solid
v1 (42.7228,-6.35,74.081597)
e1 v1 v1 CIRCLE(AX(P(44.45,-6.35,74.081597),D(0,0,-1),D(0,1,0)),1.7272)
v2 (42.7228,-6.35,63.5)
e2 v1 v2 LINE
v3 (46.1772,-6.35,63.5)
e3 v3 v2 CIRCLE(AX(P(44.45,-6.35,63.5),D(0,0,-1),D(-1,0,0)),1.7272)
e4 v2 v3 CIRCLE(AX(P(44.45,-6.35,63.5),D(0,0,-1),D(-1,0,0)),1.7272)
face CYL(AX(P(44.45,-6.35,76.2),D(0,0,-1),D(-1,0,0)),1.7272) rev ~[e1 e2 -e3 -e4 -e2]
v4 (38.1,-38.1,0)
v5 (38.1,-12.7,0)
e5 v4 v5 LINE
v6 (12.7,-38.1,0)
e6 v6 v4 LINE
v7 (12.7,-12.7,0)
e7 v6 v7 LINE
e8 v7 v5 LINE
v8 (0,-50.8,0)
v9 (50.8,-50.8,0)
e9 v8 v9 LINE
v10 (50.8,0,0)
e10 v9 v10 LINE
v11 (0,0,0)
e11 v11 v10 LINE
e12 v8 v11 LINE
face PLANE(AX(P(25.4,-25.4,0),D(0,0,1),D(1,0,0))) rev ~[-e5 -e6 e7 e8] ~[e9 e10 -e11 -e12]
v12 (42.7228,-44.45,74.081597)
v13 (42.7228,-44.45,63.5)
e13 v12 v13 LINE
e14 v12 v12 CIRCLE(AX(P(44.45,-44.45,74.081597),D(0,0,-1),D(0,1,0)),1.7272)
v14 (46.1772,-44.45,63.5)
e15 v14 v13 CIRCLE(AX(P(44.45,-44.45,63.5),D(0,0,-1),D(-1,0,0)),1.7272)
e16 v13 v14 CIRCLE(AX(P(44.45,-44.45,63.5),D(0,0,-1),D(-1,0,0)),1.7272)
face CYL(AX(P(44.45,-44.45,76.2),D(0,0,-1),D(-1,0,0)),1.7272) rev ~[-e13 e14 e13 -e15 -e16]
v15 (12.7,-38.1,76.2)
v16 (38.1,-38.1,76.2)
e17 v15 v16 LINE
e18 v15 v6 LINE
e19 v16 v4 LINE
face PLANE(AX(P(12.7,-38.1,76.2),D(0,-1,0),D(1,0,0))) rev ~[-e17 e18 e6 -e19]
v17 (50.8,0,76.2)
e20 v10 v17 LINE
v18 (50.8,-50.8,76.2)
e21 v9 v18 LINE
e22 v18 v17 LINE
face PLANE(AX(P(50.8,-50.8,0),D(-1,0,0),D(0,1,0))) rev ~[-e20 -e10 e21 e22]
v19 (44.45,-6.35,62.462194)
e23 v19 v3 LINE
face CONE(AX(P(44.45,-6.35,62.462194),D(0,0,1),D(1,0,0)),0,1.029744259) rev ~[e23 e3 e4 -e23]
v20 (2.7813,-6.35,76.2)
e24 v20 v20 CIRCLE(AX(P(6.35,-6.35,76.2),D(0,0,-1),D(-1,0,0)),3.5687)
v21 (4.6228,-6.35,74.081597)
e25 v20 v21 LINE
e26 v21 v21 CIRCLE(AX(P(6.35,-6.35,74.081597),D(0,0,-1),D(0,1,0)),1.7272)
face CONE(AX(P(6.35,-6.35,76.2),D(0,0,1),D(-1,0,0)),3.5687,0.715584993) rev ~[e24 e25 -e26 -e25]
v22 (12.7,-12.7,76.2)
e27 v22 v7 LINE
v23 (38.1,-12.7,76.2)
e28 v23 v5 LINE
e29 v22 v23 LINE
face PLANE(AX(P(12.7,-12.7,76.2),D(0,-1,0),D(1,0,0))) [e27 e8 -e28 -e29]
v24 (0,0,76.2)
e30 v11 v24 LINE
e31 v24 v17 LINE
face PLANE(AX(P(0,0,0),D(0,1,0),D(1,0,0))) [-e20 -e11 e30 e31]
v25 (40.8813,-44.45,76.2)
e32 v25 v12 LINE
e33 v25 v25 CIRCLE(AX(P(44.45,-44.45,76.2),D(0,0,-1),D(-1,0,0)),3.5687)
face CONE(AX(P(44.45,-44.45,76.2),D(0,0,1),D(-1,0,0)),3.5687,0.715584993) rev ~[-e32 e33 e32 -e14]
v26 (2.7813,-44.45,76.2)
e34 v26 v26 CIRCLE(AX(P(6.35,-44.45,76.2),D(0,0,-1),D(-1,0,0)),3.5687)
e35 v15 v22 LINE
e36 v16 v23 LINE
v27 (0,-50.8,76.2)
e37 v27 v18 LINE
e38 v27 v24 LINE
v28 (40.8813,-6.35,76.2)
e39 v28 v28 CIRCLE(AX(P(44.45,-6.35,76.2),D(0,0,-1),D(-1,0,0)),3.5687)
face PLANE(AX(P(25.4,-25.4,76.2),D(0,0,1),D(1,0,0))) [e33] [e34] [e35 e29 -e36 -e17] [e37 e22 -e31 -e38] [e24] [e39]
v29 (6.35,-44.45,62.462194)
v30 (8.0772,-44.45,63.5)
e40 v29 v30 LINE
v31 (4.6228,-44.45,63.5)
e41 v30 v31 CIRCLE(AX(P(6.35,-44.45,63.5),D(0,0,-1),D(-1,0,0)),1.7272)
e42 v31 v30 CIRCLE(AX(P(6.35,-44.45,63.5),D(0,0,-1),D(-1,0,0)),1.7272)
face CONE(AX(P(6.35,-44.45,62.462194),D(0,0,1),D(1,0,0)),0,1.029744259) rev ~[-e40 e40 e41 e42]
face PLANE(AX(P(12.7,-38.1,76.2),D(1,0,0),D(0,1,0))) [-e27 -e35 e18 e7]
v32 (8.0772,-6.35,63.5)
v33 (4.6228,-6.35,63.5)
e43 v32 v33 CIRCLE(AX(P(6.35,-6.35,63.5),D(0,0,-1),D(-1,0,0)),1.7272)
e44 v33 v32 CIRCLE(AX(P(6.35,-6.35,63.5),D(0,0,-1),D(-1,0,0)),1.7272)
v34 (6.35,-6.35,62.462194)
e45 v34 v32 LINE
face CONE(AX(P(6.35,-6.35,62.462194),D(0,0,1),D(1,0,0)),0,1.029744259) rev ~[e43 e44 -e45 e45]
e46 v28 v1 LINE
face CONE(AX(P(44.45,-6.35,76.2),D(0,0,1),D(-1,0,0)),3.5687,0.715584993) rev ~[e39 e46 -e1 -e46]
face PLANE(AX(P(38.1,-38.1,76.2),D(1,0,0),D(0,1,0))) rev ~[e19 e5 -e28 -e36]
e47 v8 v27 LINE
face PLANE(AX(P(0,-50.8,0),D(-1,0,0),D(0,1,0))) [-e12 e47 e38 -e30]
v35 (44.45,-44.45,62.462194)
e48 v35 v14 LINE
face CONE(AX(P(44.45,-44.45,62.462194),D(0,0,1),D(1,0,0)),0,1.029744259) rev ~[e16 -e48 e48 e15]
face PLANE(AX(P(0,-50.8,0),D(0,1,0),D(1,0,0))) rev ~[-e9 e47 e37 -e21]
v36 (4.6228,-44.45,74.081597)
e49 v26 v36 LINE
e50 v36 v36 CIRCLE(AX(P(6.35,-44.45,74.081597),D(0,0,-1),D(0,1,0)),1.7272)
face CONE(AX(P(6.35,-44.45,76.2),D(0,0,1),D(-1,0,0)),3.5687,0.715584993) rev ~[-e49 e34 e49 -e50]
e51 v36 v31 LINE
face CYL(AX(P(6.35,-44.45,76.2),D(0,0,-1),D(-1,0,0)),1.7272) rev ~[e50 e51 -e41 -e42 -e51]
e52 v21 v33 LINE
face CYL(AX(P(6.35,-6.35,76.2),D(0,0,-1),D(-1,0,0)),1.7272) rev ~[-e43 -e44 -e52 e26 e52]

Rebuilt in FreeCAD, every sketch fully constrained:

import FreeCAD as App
import Part
import Sketcher
from FreeCAD import Vector
Q = App.Units.Quantity

doc = App.newDocument("Part")
body = doc.addObject("PartDesign::Body", "Body")

# Sketch on XY plane
sketch1 = body.newObject("Sketcher::SketchObject", "Sketch")
sketch1.AttachmentSupport = (doc.getObject("XY_Plane"), [""])
sketch1.MapMode = "FlatFace"
sketch1.addGeometry([
    Part.LineSegment(Vector(0, 0, 0), Vector(0, -51, 0)),
    Part.LineSegment(Vector(0, -51, 0), Vector(51, -51, 0)),
    Part.LineSegment(Vector(51, -51, 0), Vector(51, 0, 0)),
    Part.LineSegment(Vector(51, 0, 0), Vector(0, 0, 0)),
], False)
sketch1.addConstraint([
    Sketcher.Constraint("Coincident", 0, 2, 1, 1),
    Sketcher.Constraint("Coincident", 1, 2, 2, 1),
    Sketcher.Constraint("Coincident", 2, 2, 3, 1),
    Sketcher.Constraint("Coincident", 3, 2, 0, 1),
    Sketcher.Constraint("Vertical", 0),
    Sketcher.Constraint("Horizontal", 1),
    Sketcher.Constraint("Vertical", 2),
    Sketcher.Constraint("Horizontal", 3),
    Sketcher.Constraint("Coincident", 3, 2, -1, 1),
    Sketcher.Constraint("Equal", 3, 0),
    Sketcher.Constraint("DistanceX", 1, 1, 1, 2, Q("2 in")),
])
pad1 = body.newObject("PartDesign::Pad", "Pad")
pad1.Profile = sketch1
pad1.Length = Q("3 in")

# Sketch on XY plane
sketch2 = body.newObject("Sketcher::SketchObject", "Sketch001")
sketch2.AttachmentSupport = (doc.getObject("XY_Plane"), [""])
sketch2.MapMode = "FlatFace"
sketch2.AttachmentOffset = App.Placement(Vector(0, 0, 3 * 25.4), App.Rotation())
sketch2.addGeometry([
    Part.LineSegment(Vector(13, -13, 0), Vector(13, -38, 0)),
    Part.LineSegment(Vector(13, -38, 0), Vector(38, -38, 0)),
    Part.LineSegment(Vector(38, -38, 0), Vector(38, -13, 0)),
    Part.LineSegment(Vector(38, -13, 0), Vector(13, -13, 0)),
], False)
sketch2.addConstraint([
    Sketcher.Constraint("Coincident", 0, 2, 1, 1),
    Sketcher.Constraint("Coincident", 1, 2, 2, 1),
    Sketcher.Constraint("Coincident", 2, 2, 3, 1),
    Sketcher.Constraint("Coincident", 3, 2, 0, 1),
    Sketcher.Constraint("Vertical", 0),
    Sketcher.Constraint("Horizontal", 1),
    Sketcher.Constraint("Vertical", 2),
    Sketcher.Constraint("Horizontal", 3),
    Sketcher.Constraint("Equal", 3, 0),
    Sketcher.Constraint("DistanceX", 1, 1, 1, 2, Q("1 in")),
    Sketcher.Constraint("DistanceX", -1, 1, 0, 2, Q("0.5 in")),
    Sketcher.Constraint("DistanceY", 0, 2, -1, 1, Q("1.5 in")),
])
pocket1 = body.newObject("PartDesign::Pocket", "Pocket")
pocket1.Profile = sketch2
pocket1.Type = "ThroughAll"

# Sketch on XY plane
sketch3 = body.newObject("Sketcher::SketchObject", "Sketch002")
sketch3.AttachmentSupport = (doc.getObject("XY_Plane"), [""])
sketch3.MapMode = "FlatFace"
sketch3.AttachmentOffset = App.Placement(Vector(0, 0, 3 * 25.4), App.Rotation())
sketch3.addGeometry([
    Part.Circle(Vector(6.3, -6.3, 0), Vector(0, 0, 1), 1.7),
    Part.Circle(Vector(44.5, -6.3, 0), Vector(0, 0, 1), 1.7),
    Part.Circle(Vector(44.5, -44.5, 0), Vector(0, 0, 1), 1.7),
    Part.Circle(Vector(6.3, -44.5, 0), Vector(0, 0, 1), 1.7),
], False)
sketch3.addConstraint([
    Sketcher.Constraint("Equal", 0, 1),
    Sketcher.Constraint("Equal", 1, 2),
    Sketcher.Constraint("Equal", 2, 3),
    Sketcher.Constraint("Horizontal", 0, 3, 1, 3),
    Sketcher.Constraint("Horizontal", 2, 3, 3, 3),
    Sketcher.Constraint("Vertical", 1, 3, 2, 3),
    Sketcher.Constraint("Vertical", 0, 3, 3, 3),
    Sketcher.Constraint("Diameter", 0, Q("0.136 in")),
    Sketcher.Constraint("DistanceX", 0, 3, 1, 3, Q("1.5 in")),
    Sketcher.Constraint("DistanceY", 2, 3, 1, 3, Q("1.5 in")),
    Sketcher.Constraint("DistanceX", -1, 1, 0, 3, Q("0.25 in")),
    Sketcher.Constraint("DistanceY", 0, 3, -1, 1, Q("0.25 in")),
])
doc.recompute()
hole = body.newObject("PartDesign::Hole", "Hole")
hole.Profile = sketch3
hole.ThreadType = "None"
hole.Diameter = Q("0.136 in")
hole.DepthType = "Dimension"
hole.Depth = Q("0.5 in")
hole.DrillPoint = "Angled"
hole.DrillPointAngle = 118
hole.HoleCutType = "Countersink"
hole.HoleCutDiameter = Q("0.281 in")
hole.HoleCutCountersinkAngle = 82

doc.recompute()
